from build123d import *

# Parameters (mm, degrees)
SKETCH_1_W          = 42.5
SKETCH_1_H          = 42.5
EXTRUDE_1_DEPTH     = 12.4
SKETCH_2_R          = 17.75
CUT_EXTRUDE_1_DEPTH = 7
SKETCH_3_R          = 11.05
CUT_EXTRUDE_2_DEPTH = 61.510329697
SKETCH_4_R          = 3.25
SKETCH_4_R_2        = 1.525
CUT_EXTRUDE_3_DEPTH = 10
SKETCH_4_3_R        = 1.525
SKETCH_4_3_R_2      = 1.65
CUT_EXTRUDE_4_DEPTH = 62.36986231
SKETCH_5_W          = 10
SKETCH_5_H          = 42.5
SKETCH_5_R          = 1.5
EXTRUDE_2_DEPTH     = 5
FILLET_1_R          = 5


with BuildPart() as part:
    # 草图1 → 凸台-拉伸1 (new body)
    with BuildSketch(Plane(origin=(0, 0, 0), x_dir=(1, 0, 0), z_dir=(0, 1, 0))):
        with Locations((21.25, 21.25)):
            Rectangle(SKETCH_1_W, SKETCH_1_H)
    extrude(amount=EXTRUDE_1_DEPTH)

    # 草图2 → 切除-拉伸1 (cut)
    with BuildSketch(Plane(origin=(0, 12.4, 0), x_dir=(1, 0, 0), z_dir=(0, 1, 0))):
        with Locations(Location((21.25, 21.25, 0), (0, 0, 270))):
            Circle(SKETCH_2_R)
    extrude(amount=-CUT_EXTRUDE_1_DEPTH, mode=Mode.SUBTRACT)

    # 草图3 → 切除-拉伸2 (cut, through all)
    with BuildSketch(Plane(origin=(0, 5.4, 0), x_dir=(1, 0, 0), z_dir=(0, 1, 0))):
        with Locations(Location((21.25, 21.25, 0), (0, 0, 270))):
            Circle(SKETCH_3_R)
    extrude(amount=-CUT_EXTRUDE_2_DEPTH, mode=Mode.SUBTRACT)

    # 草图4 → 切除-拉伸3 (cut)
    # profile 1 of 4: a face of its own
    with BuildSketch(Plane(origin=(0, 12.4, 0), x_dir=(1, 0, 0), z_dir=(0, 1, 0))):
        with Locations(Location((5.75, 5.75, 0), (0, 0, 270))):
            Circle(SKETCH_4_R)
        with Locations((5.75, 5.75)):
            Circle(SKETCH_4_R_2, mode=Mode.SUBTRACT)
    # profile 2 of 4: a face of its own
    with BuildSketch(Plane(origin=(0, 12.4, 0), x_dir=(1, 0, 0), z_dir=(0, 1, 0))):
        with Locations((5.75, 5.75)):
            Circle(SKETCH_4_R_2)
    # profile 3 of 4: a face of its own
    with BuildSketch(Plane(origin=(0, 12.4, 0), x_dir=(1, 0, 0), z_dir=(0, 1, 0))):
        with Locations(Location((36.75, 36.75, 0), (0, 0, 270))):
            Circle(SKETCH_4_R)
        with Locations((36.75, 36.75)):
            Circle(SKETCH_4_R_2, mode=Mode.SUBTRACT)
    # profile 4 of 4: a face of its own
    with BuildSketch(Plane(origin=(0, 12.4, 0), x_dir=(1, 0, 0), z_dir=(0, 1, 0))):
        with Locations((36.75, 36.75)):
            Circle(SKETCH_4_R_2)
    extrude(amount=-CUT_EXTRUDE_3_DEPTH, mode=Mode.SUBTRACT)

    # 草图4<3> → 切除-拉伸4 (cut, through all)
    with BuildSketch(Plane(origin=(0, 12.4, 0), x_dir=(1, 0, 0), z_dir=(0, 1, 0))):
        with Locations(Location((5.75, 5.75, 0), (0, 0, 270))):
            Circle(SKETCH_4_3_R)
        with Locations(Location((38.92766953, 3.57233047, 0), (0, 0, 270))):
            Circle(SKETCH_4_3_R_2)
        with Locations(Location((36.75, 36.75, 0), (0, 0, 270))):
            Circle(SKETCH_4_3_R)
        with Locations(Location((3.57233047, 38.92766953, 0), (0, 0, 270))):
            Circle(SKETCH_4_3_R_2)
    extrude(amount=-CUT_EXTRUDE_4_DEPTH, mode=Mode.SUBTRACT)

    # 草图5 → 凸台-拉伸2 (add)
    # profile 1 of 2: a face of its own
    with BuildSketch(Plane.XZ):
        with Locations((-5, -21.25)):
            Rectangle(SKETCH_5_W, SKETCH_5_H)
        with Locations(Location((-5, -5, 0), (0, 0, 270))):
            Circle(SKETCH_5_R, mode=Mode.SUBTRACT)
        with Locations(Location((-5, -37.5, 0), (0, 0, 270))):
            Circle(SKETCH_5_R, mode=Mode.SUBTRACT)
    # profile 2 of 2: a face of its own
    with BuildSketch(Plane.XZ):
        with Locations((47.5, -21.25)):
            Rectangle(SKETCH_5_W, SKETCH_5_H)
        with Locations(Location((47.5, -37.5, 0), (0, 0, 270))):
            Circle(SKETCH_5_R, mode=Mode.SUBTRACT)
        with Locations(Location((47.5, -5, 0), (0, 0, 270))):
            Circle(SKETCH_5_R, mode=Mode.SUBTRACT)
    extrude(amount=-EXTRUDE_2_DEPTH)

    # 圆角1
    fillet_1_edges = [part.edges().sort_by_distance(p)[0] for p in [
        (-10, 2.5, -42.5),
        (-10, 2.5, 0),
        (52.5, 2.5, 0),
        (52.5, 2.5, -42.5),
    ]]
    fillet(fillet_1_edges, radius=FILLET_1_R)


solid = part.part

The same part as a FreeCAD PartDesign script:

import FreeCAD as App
import Part
import Sketcher

V = App.Vector


def edges_at(feature, points):
    """Names of the edges that pass closest to the given points."""
    edges = feature.Shape.Edges
    near = lambda p: min(range(len(edges)), key=lambda i: edges[i].distToShape(Part.Vertex(*p))[0])
    return sorted({f"Edge{near(p) + 1}" for p in points})


def add_polygon(sketch, points):
    """Adds a closed chain of lines whose ends are joined by coincident constraints."""
    first, n = sketch.GeometryCount, len(points)
    for a, b in zip(points, points[1:] + points[:1]):
        sketch.addGeometry(Part.LineSegment(App.Vector(*a, 0), App.Vector(*b, 0)), False)
    for i in range(n):
        sketch.addConstraint(Sketcher.Constraint("Coincident", first + i, 2, first + (i + 1) % n, 1))

doc = App.newDocument("Part")
body = doc.addObject("PartDesign::Body", "Body")

sketch1 = doc.addObject("Sketcher::SketchObject", "Sketch")
body.addObject(sketch1)
sketch1.AttachmentSupport = (doc.XZ_Plane, [""])
sketch1.MapMode = "FlatFace"
add_polygon(sketch1, [(0, -42), (0, 0), (42, 0), (42, -42)])
sketch1.addConstraint(Sketcher.Constraint("Vertical", 0))
sketch1.addConstraint(Sketcher.Constraint("Horizontal", 1))
sketch1.addConstraint(Sketcher.Constraint("Vertical", 2))
sketch1.addConstraint(Sketcher.Constraint("Horizontal", 3))
sketch1.addConstraint(Sketcher.Constraint("Coincident", 0, 2, -1, 1))
sketch1.addConstraint(Sketcher.Constraint("Equal", 3, 0))
sketch1.addConstraint(Sketcher.Constraint("DistanceX", 1, 1, 1, 2, 42.5))
pad1 = doc.addObject("PartDesign::Pad", "Pad")
body.addObject(pad1)
pad1.Profile = sketch1
pad1.Length = 12.4
pad1.Reversed = True

sketch2 = doc.addObject("Sketcher::SketchObject", "Sketch001")
body.addObject(sketch2)
sketch2.AttachmentSupport = (doc.XZ_Plane, [""])
sketch2.MapMode = "FlatFace"
sketch2.AttachmentOffset = App.Placement(V(0, 0, -12.4), App.Rotation())
sketch2.addGeometry(Part.Circle(V(21, -21, 0), V(0, 0, 1), 18), False)
sketch2.addConstraint(Sketcher.Constraint("Diameter", 0, 35.5))
sketch2.addConstraint(Sketcher.Constraint("DistanceX", -1, 1, 0, 3, 21.25))
sketch2.addConstraint(Sketcher.Constraint("DistanceY", 0, 3, -1, 1, 21.25))
pocket1 = doc.addObject("PartDesign::Pocket", "Pocket")
body.addObject(pocket1)
pocket1.Profile = sketch2
pocket1.Length = 7
pocket1.Reversed = True

sketch3 = doc.addObject("Sketcher::SketchObject", "Sketch002")
body.addObject(sketch3)
sketch3.AttachmentSupport = (doc.XZ_Plane, [""])
sketch3.MapMode = "FlatFace"
sketch3.AttachmentOffset = App.Placement(V(0, 0, -5.4), App.Rotation())
sketch3.addGeometry(Part.Circle(V(21, -21, 0), V(0, 0, 1), 11), False)
sketch3.addConstraint(Sketcher.Constraint("Diameter", 0, 22.1))
sketch3.addConstraint(Sketcher.Constraint("DistanceX", -1, 1, 0, 3, 21.25))
sketch3.addConstraint(Sketcher.Constraint("DistanceY", 0, 3, -1, 1, 21.25))
pocket2 = doc.addObject("PartDesign::Pocket", "Pocket001")
body.addObject(pocket2)
pocket2.Profile = sketch3
pocket2.Type = "ThroughAll"
pocket2.Reversed = True

sketch4 = doc.addObject("Sketcher::SketchObject", "Sketch003")
body.addObject(sketch4)
sketch4.AttachmentSupport = (doc.XZ_Plane, [""])
sketch4.MapMode = "FlatFace"
sketch4.AttachmentOffset = App.Placement(V(0, 0, -12.4), App.Rotation())
sketch4.addGeometry(Part.Circle(V(5.8, -5.8, 0), V(0, 0, 1), 3.2), False)
sketch4.addGeometry(Part.Circle(V(36.8, -36.8, 0), V(0, 0, 1), 3.2), False)
sketch4.addConstraint(Sketcher.Constraint("Equal", 0, 1))
sketch4.addConstraint(Sketcher.Constraint("Diameter", 0, 6.5))
sketch4.addConstraint(Sketcher.Constraint("DistanceX", 0, 3, 1, 3, 31.0))
sketch4.addConstraint(Sketcher.Constraint("DistanceY", 1, 3, 0, 3, 31.0))
sketch4.addConstraint(Sketcher.Constraint("DistanceX", -1, 1, 0, 3, 5.75))
sketch4.addConstraint(Sketcher.Constraint("DistanceY", 0, 3, -1, 1, 5.75))
pocket3 = doc.addObject("PartDesign::Pocket", "Pocket002")
body.addObject(pocket3)
pocket3.Profile = sketch4
pocket3.Length = 10
pocket3.Reversed = True

sketch5 = doc.addObject("Sketcher::SketchObject", "Sketch004")
body.addObject(sketch5)
sketch5.AttachmentSupport = (doc.XZ_Plane, [""])
sketch5.MapMode = "FlatFace"
sketch5.AttachmentOffset = App.Placement(V(0, 0, -12.4), App.Rotation())
sketch5.addGeometry(Part.Circle(V(5.8, -5.8, 0), V(0, 0, 1), 1.5), False)
sketch5.addGeometry(Part.Circle(V(38.9, -3.6, 0), V(0, 0, 1), 1.6), False)
sketch5.addGeometry(Part.Circle(V(36.8, -36.8, 0), V(0, 0, 1), 1.5), False)
sketch5.addGeometry(Part.Circle(V(3.6, -38.9, 0), V(0, 0, 1), 1.6), False)
sketch5.addConstraint(Sketcher.Constraint("Equal", 0, 2))
sketch5.addConstraint(Sketcher.Constraint("Equal", 1, 3))
sketch5.addConstraint(Sketcher.Constraint("Diameter", 1, 3.3))
sketch5.addConstraint(Sketcher.Constraint("Diameter", 0, 3.05))
sketch5.addConstraint(Sketcher.Constraint("DistanceX", 0, 3, 2, 3, 31.0))
sketch5.addConstraint(Sketcher.Constraint("DistanceY", 2, 3, 0, 3, 31.0))
sketch5.addConstraint(Sketcher.Constraint("DistanceX", -1, 1, 0, 3, 5.75))
sketch5.addConstraint(Sketcher.Constraint("DistanceY", 0, 3, -1, 1, 5.75))
sketch5.addConstraint(Sketcher.Constraint("DistanceX", -1, 1, 1, 3, 38.92767))
sketch5.addConstraint(Sketcher.Constraint("DistanceY", 1, 3, -1, 1, 3.57233))
sketch5.addConstraint(Sketcher.Constraint("DistanceX", -1, 1, 3, 3, 3.57233))
sketch5.addConstraint(Sketcher.Constraint("DistanceY", 3, 3, -1, 1, 38.92767))
pocket4 = doc.addObject("PartDesign::Pocket", "Pocket003")
body.addObject(pocket4)
pocket4.Profile = sketch5
pocket4.Type = "ThroughAll"
pocket4.Reversed = True

sketch6 = doc.addObject("Sketcher::SketchObject", "Sketch005")
body.addObject(sketch6)
sketch6.AttachmentSupport = (doc.XZ_Plane, [""])
sketch6.MapMode = "FlatFace"
add_polygon(sketch6, [(-10, 0), (-10, -42.5), (0, -42.5), (0, 0)])
sketch6.addGeometry(Part.Circle(V(-5, -37.5, 0), V(0, 0, 1), 1.5), False)
sketch6.addGeometry(Part.Circle(V(-5, -5, 0), V(0, 0, 1), 1.5), False)
add_polygon(sketch6, [(42.5, 0), (42.5, -42.5), (52.5, -42.5), (52.5, 0)])
sketch6.addGeometry(Part.Circle(V(47.5, -37.5, 0), V(0, 0, 1), 1.5), False)
sketch6.addGeometry(Part.Circle(V(47.5, -5, 0), V(0, 0, 1), 1.5), False)
sketch6.addConstraint(Sketcher.Constraint("Vertical", 0))
sketch6.addConstraint(Sketcher.Constraint("Horizontal", 1))
sketch6.addConstraint(Sketcher.Constraint("Vertical", 2))
sketch6.addConstraint(Sketcher.Constraint("Horizontal", 3))
sketch6.addConstraint(Sketcher.Constraint("Vertical", 6))
sketch6.addConstraint(Sketcher.Constraint("Horizontal", 7))
sketch6.addConstraint(Sketcher.Constraint("Vertical", 8))
sketch6.addConstraint(Sketcher.Constraint("Horizontal", 9))
sketch6.addConstraint(Sketcher.Constraint("Coincident", 2, 2, -1, 1))
sketch6.addConstraint(Sketcher.Constraint("Equal", 4, 5))
sketch6.addConstraint(Sketcher.Constraint("Equal", 5, 10))
sketch6.addConstraint(Sketcher.Constraint("Equal", 10, 11))
sketch6.addConstraint(Sketcher.Constraint("PointOnObject", 8, 2, -1))
sketch6.addConstraint(Sketcher.Constraint("Horizontal", 4, 3, 10, 3))
sketch6.addConstraint(Sketcher.Constraint("Horizontal", 5, 3, 11, 3))
sketch6.addConstraint(Sketcher.Constraint("Horizontal", 1, 2, 6, 2))
sketch6.addConstraint(Sketcher.Constraint("Vertical", 4, 3, 5, 3))
sketch6.addConstraint(Sketcher.Constraint("Vertical", 10, 3, 11, 3))
sketch6.addConstraint(Sketcher.Constraint("Equal", 3, 7))
sketch6.addConstraint(Sketcher.Constraint("Diameter", 4, 3.0))
sketch6.addConstraint(Sketcher.Constraint("DistanceX", 1, 1, 1, 2, 10.0))
sketch6.addConstraint(Sketcher.Constraint("DistanceY", 0, 2, 0, 1, 42.5))
sketch6.addConstraint(Sketcher.Constraint("DistanceX", 4, 3, -1, 1, 5.0))
sketch6.addConstraint(Sketcher.Constraint("DistanceY", 5, 3, -1, 1, 5.0))
sketch6.addConstraint(Sketcher.Constraint("DistanceY", 0, 2, 4, 3, 5.0))
sketch6.addConstraint(Sketcher.Constraint("DistanceX", 6, 2, 10, 3, 5.0))
sketch6.addConstraint(Sketcher.Constraint("DistanceX", -1, 1, 10, 3, 47.5))
pad2 = doc.addObject("PartDesign::Pad", "Pad001")
body.addObject(pad2)
pad2.Profile = sketch6
pad2.Length = 5
pad2.Reversed = True
doc.recompute()

fillet = doc.addObject("PartDesign::Fillet", "Fillet")
body.addObject(fillet)
fillet.Base = (pad2, edges_at(pad2, [
    (-10, 2.5, -42.5),
    (-10, 2.5, 0),
    (52.5, 2.5, 0),
    (52.5, 2.5, -42.5),
]))
fillet.Radius = 5

doc.recompute()
